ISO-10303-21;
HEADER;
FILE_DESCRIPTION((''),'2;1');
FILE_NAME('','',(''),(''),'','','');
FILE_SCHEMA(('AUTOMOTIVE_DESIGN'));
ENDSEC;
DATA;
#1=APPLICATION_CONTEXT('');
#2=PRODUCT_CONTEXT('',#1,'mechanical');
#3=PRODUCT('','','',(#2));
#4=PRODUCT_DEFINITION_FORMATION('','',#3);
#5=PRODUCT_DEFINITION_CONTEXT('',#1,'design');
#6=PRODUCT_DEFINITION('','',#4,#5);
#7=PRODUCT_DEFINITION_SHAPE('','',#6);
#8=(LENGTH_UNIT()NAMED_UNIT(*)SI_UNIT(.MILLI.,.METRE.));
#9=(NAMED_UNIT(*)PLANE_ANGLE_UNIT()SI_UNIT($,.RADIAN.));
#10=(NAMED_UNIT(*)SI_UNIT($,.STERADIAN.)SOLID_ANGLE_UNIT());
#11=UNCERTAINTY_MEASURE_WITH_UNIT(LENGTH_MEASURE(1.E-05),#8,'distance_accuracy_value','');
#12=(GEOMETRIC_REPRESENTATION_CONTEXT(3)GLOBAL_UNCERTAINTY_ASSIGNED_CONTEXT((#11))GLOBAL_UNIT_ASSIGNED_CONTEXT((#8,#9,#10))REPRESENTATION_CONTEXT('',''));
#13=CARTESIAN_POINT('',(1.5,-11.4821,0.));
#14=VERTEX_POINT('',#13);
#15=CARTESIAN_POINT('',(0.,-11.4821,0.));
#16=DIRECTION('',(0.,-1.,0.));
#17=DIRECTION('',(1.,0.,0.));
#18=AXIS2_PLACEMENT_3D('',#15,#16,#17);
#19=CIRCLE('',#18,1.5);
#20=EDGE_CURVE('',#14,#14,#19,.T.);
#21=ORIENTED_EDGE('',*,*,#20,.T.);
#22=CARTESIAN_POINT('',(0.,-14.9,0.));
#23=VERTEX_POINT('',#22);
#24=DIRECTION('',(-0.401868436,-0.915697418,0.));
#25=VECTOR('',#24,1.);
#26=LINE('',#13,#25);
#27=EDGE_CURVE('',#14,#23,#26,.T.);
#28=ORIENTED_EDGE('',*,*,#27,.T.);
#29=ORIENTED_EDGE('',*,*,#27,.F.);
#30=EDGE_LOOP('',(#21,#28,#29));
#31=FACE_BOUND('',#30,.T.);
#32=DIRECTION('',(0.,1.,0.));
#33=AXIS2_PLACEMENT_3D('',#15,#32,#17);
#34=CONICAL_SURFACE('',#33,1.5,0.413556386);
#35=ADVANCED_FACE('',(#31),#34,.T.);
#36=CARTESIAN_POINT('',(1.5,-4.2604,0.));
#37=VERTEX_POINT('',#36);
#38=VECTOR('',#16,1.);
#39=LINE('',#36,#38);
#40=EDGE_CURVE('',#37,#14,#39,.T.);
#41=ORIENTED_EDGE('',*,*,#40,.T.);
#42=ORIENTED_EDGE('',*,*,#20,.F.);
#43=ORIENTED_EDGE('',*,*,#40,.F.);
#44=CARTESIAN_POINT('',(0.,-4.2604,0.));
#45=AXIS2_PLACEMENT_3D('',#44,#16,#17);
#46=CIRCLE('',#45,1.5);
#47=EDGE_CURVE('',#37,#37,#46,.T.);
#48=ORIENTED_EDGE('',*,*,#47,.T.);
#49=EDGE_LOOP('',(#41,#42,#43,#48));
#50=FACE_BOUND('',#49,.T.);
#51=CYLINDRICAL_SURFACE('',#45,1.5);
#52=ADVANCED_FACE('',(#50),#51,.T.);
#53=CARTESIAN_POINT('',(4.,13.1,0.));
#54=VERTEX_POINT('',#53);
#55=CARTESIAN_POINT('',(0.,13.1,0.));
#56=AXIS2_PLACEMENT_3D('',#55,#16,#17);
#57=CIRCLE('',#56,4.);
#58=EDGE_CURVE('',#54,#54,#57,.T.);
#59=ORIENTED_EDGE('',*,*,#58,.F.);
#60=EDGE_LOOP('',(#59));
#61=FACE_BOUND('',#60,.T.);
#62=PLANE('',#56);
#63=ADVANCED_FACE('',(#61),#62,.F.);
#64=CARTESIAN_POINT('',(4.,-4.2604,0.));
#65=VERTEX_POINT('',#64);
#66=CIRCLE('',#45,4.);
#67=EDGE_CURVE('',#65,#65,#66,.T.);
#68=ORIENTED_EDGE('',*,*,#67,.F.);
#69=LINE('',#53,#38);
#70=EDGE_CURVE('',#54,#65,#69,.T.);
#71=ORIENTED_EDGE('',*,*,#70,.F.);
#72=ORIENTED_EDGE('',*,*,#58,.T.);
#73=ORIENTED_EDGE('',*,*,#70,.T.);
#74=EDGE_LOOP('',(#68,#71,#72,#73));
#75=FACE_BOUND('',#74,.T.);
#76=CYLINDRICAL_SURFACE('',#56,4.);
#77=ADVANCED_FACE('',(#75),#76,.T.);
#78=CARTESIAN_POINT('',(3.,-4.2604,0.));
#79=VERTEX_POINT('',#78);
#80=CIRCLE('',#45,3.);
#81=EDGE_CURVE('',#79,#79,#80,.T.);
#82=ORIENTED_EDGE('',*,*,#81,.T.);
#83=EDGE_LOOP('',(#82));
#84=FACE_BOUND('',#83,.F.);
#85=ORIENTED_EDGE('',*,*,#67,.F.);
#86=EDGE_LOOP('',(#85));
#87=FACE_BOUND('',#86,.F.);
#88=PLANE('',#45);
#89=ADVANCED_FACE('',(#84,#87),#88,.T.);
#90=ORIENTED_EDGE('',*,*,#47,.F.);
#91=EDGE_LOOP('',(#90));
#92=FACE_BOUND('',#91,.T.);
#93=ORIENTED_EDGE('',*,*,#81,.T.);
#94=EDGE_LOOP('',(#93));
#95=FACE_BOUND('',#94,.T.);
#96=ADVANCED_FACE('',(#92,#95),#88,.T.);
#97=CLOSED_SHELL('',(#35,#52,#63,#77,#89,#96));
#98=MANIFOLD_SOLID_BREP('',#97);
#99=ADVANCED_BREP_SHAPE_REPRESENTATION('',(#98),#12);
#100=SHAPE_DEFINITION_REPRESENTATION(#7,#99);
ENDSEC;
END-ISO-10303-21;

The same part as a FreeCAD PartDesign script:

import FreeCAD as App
import Part
import Sketcher

V = App.Vector

doc = App.newDocument("Part")
body = doc.addObject("PartDesign::Body", "Body")

sketch1 = body.newObject("Sketcher::SketchObject", "Sketch")
sketch1.AttachmentSupport = (doc.getObject("XY_Plane"), [""])
sketch1.MapMode = "FlatFace"
sketch1.addGeometry(Part.LineSegment(V(4, 13.1, 0), V(0, 13.1, 0)), False)
sketch1.addGeometry(Part.LineSegment(V(0, 13.1, 0), V(0, -14.9, 0)), False)
sketch1.addGeometry(Part.LineSegment(V(0, -14.9, 0), V(1.5, -11.5, 0)), False)
sketch1.addGeometry(Part.LineSegment(V(1.5, -11.5, 0), V(1.5, -4.3, 0)), False)
sketch1.addGeometry(Part.LineSegment(V(1.5, -4.3, 0), V(4, -4.3, 0)), False)
sketch1.addGeometry(Part.LineSegment(V(4, -4.3, 0), V(4, 13.1, 0)), False)
sketch1.addConstraint(Sketcher.Constraint("Coincident", 0, 2, 1, 1))
sketch1.addConstraint(Sketcher.Constraint("Coincident", 1, 2, 2, 1))
sketch1.addConstraint(Sketcher.Constraint("Coincident", 2, 2, 3, 1))
sketch1.addConstraint(Sketcher.Constraint("Coincident", 3, 2, 4, 1))
sketch1.addConstraint(Sketcher.Constraint("Coincident", 4, 2, 5, 1))
sketch1.addConstraint(Sketcher.Constraint("Coincident", 5, 2, 0, 1))
sketch1.addConstraint(Sketcher.Constraint("Horizontal", 0))
sketch1.addConstraint(Sketcher.Constraint("Vertical", 1))
sketch1.addConstraint(Sketcher.Constraint("Vertical", 3))
sketch1.addConstraint(Sketcher.Constraint("Horizontal", 4))
sketch1.addConstraint(Sketcher.Constraint("Vertical", 5))
sketch1.addConstraint(Sketcher.Constraint("PointOnObject", 0, 2, -2))
sketch1.addConstraint(Sketcher.Constraint("DistanceX", 0, 2, 0, 1, 4.0))
sketch1.addConstraint(Sketcher.Constraint("DistanceY", 1, 2, 1, 1, 28.0))
sketch1.addConstraint(Sketcher.Constraint("DistanceY", 1, 2, -1, 1, 14.9))
sketch1.addConstraint(Sketcher.Constraint("DistanceX", -1, 1, 2, 2, 1.5))
sketch1.addConstraint(Sketcher.Constraint("Distance", 2, 3.7326))
sketch1.addConstraint(Sketcher.Constraint("DistanceY", 3, 1, 3, 2, 7.2217))
revolution = body.newObject("PartDesign::Revolution", "Revolution")
revolution.Profile = sketch1
revolution.ReferenceAxis = (sketch1, ["V_Axis"])
revolution.Angle = 360

doc.recompute()
